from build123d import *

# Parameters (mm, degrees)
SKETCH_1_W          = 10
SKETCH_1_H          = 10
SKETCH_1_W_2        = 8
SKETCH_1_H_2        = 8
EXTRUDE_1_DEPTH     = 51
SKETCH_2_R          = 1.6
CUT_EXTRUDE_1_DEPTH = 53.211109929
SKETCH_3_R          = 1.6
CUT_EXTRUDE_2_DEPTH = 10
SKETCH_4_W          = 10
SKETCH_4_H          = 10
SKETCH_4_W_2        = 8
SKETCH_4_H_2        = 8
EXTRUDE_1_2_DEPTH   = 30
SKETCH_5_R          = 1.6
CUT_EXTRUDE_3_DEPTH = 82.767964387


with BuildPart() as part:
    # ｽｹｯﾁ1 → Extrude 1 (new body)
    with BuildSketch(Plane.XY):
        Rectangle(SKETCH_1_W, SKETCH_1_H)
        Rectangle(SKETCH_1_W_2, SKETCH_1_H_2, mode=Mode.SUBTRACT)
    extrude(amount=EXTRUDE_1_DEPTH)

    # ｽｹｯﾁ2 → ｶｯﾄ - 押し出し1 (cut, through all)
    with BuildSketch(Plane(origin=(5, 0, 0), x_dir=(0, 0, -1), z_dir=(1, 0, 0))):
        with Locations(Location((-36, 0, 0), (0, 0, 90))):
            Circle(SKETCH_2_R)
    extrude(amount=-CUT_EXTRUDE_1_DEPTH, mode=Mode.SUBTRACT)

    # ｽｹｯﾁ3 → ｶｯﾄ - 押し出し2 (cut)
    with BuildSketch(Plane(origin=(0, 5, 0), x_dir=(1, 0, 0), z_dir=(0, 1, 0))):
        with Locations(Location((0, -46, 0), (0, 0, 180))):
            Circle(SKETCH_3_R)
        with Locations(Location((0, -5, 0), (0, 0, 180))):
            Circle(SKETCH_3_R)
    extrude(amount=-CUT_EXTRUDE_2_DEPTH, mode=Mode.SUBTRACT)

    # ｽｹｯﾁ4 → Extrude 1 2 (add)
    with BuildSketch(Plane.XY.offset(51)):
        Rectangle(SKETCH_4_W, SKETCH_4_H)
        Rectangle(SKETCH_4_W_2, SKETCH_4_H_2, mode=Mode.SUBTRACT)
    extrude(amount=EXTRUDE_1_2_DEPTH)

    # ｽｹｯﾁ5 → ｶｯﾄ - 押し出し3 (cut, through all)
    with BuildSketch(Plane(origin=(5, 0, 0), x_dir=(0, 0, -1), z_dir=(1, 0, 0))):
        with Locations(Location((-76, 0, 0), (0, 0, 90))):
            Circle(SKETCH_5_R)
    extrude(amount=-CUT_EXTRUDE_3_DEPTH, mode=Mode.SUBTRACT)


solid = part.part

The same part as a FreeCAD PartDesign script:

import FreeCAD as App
import Part
import Sketcher
from FreeCAD import Vector
Q = App.Units.Quantity


def add_polygon(sketch, points):
    """Adds a closed chain of lines whose ends are joined by coincident constraints."""
    first, n = sketch.GeometryCount, len(points)
    for a, b in zip(points, points[1:] + points[:1]):
        sketch.addGeometry(Part.LineSegment(App.Vector(*a, 0), App.Vector(*b, 0)), False)
    for i in range(n):
        sketch.addConstraint(Sketcher.Constraint("Coincident", first + i, 2, first + (i + 1) % n, 1))

doc = App.newDocument("Part")
body = doc.addObject("PartDesign::Body", "Body")

# Sketch on XY plane
sketch1 = body.newObject("Sketcher::SketchObject", "Sketch")
sketch1.AttachmentSupport = (doc.getObject("XY_Plane"), [""])
sketch1.MapMode = "FlatFace"
add_polygon(sketch1, [(-5, 5), (-5, -5), (5, -5), (5, 5)])  # lines 0-3
add_polygon(sketch1, [(4, -4), (-4, -4), (-4, 4), (4, 4)])  # lines 4-7
sketch1.addConstraint(Sketcher.Constraint("Vertical", 0))
sketch1.addConstraint(Sketcher.Constraint("Horizontal", 1))
sketch1.addConstraint(Sketcher.Constraint("Vertical", 2))
sketch1.addConstraint(Sketcher.Constraint("Horizontal", 3))
sketch1.addConstraint(Sketcher.Constraint("Horizontal", 4))
sketch1.addConstraint(Sketcher.Constraint("Vertical", 5))
sketch1.addConstraint(Sketcher.Constraint("Horizontal", 6))
sketch1.addConstraint(Sketcher.Constraint("Vertical", 7))
sketch1.addConstraint(Sketcher.Constraint("Symmetric", 0, 2, 2, 2, -1, 1))
sketch1.addConstraint(Sketcher.Constraint("Symmetric", 4, 2, 6, 2, -1, 1))
sketch1.addConstraint(Sketcher.Constraint("Equal", 3, 0))
sketch1.addConstraint(Sketcher.Constraint("Equal", 6, 5))
sketch1.addConstraint(Sketcher.Constraint("DistanceX", 1, 1, 1, 2, Q("10 mm")))
sketch1.addConstraint(Sketcher.Constraint("DistanceX", 4, 2, 4, 1, Q("8 mm")))
pad1 = body.newObject("PartDesign::Pad", "Pad")
pad1.Profile = sketch1
pad1.Length = 51

# Sketch on YZ plane
sketch2 = body.newObject("Sketcher::SketchObject", "Sketch001")
sketch2.AttachmentSupport = (doc.getObject("YZ_Plane"), [""])
sketch2.MapMode = "FlatFace"
sketch2.AttachmentOffset = App.Placement(Vector(0, 0, 5), App.Rotation())
sketch2.addGeometry(Part.Circle(Vector(0, 36, 0), Vector(0, 0, 1), 1.6), False)
sketch2.addConstraint(Sketcher.Constraint("PointOnObject", 0, 3, -2))
sketch2.addConstraint(Sketcher.Constraint("Diameter", 0, Q("3.2 mm")))
sketch2.addConstraint(Sketcher.Constraint("DistanceY", -1, 1, 0, 3, Q("36 mm")))
pocket1 = body.newObject("PartDesign::Pocket", "Pocket")
pocket1.Profile = sketch2
pocket1.Type = "ThroughAll"

# Sketch on XZ plane
sketch3 = body.newObject("Sketcher::SketchObject", "Sketch002")
sketch3.AttachmentSupport = (doc.getObject("XZ_Plane"), [""])
sketch3.MapMode = "FlatFace"
sketch3.AttachmentOffset = App.Placement(Vector(0, 0, -5), App.Rotation())
sketch3.addGeometry(Part.Circle(Vector(0, 46, 0), Vector(0, 0, 1), 1.6), False)
sketch3.addGeometry(Part.Circle(Vector(0, 5, 0), Vector(0, 0, 1), 1.6), False)
sketch3.addConstraint(Sketcher.Constraint("Equal", 0, 1))
sketch3.addConstraint(Sketcher.Constraint("PointOnObject", 0, 3, -2))
sketch3.addConstraint(Sketcher.Constraint("PointOnObject", 1, 3, -2))
sketch3.addConstraint(Sketcher.Constraint("Diameter", 0, Q("3.2 mm")))
sketch3.addConstraint(Sketcher.Constraint("DistanceY", -1, 1, 0, 3, Q("46 mm")))
sketch3.addConstraint(Sketcher.Constraint("DistanceY", -1, 1, 1, 3, Q("5 mm")))
pocket2 = body.newObject("PartDesign::Pocket", "Pocket001")
pocket2.Profile = sketch3
pocket2.Length = 10
pocket2.Reversed = True

# Sketch on XY plane
sketch4 = body.newObject("Sketcher::SketchObject", "Sketch003")
sketch4.AttachmentSupport = (doc.getObject("XY_Plane"), [""])
sketch4.MapMode = "FlatFace"
sketch4.AttachmentOffset = App.Placement(Vector(0, 0, 51), App.Rotation())
add_polygon(sketch4, [(-5, 5), (-5, -5), (5, -5), (5, 5)])  # lines 0-3
add_polygon(sketch4, [(4, -4), (-4, -4), (-4, 4), (4, 4)])  # lines 4-7
sketch4.addConstraint(Sketcher.Constraint("Vertical", 0))
sketch4.addConstraint(Sketcher.Constraint("Horizontal", 1))
sketch4.addConstraint(Sketcher.Constraint("Vertical", 2))
sketch4.addConstraint(Sketcher.Constraint("Horizontal", 3))
sketch4.addConstraint(Sketcher.Constraint("Horizontal", 4))
sketch4.addConstraint(Sketcher.Constraint("Vertical", 5))
sketch4.addConstraint(Sketcher.Constraint("Horizontal", 6))
sketch4.addConstraint(Sketcher.Constraint("Vertical", 7))
sketch4.addConstraint(Sketcher.Constraint("Symmetric", 0, 2, 2, 2, -1, 1))
sketch4.addConstraint(Sketcher.Constraint("Symmetric", 4, 2, 6, 2, -1, 1))
sketch4.addConstraint(Sketcher.Constraint("Equal", 3, 0))
sketch4.addConstraint(Sketcher.Constraint("Equal", 6, 5))
sketch4.addConstraint(Sketcher.Constraint("DistanceX", 1, 1, 1, 2, Q("10 mm")))
sketch4.addConstraint(Sketcher.Constraint("DistanceX", 4, 2, 4, 1, Q("8 mm")))
pad2 = body.newObject("PartDesign::Pad", "Pad001")
pad2.Profile = sketch4
pad2.Length = 30

# Sketch on YZ plane
sketch5 = body.newObject("Sketcher::SketchObject", "Sketch004")
sketch5.AttachmentSupport = (doc.getObject("YZ_Plane"), [""])
sketch5.MapMode = "FlatFace"
sketch5.AttachmentOffset = App.Placement(Vector(0, 0, 5), App.Rotation())
sketch5.addGeometry(Part.Circle(Vector(0, 76, 0), Vector(0, 0, 1), 1.6), False)
sketch5.addConstraint(Sketcher.Constraint("PointOnObject", 0, 3, -2))
sketch5.addConstraint(Sketcher.Constraint("Diameter", 0, Q("3.2 mm")))
sketch5.addConstraint(Sketcher.Constraint("DistanceY", -1, 1, 0, 3, Q("76 mm")))
pocket3 = body.newObject("PartDesign::Pocket", "Pocket002")
pocket3.Profile = sketch5
pocket3.Type = "ThroughAll"

doc.recompute()
